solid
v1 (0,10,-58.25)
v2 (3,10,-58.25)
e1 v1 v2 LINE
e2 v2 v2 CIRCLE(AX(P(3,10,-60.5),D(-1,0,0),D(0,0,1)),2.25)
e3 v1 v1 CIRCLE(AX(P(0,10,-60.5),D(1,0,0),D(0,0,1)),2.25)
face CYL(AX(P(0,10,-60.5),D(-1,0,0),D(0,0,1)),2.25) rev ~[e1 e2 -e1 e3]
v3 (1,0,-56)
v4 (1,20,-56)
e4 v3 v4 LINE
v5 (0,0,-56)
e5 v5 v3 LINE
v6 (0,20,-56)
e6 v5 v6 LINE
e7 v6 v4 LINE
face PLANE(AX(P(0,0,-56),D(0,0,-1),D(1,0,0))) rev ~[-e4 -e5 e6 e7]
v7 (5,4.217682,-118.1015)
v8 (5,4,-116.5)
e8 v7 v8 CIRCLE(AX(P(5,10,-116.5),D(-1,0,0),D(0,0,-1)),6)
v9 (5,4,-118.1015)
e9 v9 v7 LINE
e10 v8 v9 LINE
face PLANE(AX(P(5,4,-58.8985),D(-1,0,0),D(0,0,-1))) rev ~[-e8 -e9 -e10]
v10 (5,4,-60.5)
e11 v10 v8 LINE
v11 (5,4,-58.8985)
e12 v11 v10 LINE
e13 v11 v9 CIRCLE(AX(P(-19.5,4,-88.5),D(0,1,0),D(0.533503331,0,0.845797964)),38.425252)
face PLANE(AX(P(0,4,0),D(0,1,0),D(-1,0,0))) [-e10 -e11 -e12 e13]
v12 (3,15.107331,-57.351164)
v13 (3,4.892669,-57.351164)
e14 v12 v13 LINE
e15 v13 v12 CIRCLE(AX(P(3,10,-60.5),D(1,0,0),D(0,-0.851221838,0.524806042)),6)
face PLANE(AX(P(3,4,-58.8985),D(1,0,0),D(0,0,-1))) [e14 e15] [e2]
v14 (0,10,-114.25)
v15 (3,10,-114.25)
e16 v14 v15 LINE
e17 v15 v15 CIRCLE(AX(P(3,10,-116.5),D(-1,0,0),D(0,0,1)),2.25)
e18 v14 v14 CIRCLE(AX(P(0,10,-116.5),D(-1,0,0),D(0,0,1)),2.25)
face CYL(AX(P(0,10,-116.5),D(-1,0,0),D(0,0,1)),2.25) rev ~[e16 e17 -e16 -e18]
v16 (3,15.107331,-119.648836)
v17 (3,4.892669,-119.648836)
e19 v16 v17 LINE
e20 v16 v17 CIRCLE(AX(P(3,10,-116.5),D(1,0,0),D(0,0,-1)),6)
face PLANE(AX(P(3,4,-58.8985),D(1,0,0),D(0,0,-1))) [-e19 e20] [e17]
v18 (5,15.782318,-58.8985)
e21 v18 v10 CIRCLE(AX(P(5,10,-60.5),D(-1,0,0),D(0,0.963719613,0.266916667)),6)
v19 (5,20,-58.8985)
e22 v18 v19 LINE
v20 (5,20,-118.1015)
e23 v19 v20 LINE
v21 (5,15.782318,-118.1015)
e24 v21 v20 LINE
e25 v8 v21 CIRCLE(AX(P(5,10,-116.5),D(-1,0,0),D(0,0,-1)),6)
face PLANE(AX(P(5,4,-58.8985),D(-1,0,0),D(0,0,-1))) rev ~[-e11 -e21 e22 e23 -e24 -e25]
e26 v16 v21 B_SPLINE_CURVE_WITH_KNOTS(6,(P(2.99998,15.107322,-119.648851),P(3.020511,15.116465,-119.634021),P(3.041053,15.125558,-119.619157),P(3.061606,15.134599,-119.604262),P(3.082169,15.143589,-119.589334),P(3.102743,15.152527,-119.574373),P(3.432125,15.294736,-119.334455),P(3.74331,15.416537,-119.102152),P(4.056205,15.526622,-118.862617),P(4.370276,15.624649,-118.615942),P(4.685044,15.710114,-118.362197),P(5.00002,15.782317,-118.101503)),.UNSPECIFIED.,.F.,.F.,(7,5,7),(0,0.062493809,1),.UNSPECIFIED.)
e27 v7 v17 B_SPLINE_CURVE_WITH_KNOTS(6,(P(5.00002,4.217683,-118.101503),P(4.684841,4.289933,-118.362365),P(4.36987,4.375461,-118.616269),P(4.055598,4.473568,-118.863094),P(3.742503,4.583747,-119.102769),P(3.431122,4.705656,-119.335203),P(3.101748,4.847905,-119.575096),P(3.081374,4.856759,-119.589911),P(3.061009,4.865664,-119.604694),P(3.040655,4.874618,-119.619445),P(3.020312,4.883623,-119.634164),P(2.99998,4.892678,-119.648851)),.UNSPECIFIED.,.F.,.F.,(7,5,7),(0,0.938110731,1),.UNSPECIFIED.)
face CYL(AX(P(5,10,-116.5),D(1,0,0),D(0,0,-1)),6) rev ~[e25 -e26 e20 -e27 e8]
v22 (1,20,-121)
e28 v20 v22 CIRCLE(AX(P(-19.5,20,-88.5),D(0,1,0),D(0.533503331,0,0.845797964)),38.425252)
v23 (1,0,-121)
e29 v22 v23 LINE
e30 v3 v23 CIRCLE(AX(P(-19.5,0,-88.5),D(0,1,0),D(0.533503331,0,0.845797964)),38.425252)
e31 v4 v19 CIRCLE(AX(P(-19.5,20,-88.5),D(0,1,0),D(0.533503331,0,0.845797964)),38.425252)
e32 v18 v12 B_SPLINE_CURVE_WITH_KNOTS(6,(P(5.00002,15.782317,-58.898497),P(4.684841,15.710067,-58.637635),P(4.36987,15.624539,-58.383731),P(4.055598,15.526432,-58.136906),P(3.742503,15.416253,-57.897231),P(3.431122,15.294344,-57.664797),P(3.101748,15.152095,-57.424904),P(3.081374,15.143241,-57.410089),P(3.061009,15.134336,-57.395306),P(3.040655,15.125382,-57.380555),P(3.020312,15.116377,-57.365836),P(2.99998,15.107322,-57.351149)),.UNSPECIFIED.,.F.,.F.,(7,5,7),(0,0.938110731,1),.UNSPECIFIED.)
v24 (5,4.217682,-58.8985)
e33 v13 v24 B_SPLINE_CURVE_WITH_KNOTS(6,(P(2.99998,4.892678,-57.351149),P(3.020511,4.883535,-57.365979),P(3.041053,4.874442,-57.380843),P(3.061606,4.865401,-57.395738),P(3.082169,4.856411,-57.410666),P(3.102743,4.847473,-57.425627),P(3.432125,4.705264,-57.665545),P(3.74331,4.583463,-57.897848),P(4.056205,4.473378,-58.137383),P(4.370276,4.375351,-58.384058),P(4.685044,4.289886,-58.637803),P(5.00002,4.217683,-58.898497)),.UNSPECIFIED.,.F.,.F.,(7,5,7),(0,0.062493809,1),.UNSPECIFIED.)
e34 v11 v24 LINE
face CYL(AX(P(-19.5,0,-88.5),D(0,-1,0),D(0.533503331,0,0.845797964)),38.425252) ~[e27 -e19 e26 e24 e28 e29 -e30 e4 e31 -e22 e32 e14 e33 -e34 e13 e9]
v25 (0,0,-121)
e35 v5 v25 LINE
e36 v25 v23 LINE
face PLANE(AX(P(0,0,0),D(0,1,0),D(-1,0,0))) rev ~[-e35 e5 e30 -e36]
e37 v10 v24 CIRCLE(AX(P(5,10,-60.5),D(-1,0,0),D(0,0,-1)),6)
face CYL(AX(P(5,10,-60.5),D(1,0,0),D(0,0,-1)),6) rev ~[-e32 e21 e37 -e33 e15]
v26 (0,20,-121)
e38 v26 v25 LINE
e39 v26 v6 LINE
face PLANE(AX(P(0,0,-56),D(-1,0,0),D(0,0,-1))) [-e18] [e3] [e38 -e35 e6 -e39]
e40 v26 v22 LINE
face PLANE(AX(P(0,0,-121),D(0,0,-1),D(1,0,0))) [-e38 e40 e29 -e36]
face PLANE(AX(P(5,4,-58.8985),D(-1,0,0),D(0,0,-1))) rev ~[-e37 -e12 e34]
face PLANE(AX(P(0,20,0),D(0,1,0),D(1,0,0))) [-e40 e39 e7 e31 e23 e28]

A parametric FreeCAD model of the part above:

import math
import FreeCAD as App
import Part
import Sketcher

V = App.Vector

doc = App.newDocument("Part")
body = doc.addObject("PartDesign::Body", "Body")

# Sketch on XZ plane
sketch1 = body.newObject("Sketcher::SketchObject", "Sketch")
sketch1.AttachmentSupport = (doc.getObject("XZ_Plane"), [""])
sketch1.MapMode = "FlatFace"
sketch1.addGeometry([
    Part.LineSegment(V(0, -121, 0), V(0, -56, 0)),
    Part.LineSegment(V(0, -56, 0), V(1, -56, 0)),
    Part.ArcOfCircle(Part.Circle(V(-19.5, -88.5, 0), V(0, 0, 1), 38.4), math.radians(-58), math.radians(58)),
    Part.LineSegment(V(1, -121, 0), V(0, -121, 0)),
], False)
sketch1.addConstraint([
    Sketcher.Constraint("Coincident", 0, 2, 1, 1),
    Sketcher.Constraint("Coincident", 1, 2, 2, 2),
    Sketcher.Constraint("Coincident", 2, 1, 3, 1),
    Sketcher.Constraint("Coincident", 3, 2, 0, 1),
    Sketcher.Constraint("Vertical", 0),
    Sketcher.Constraint("Horizontal", 1),
    Sketcher.Constraint("Horizontal", 3),
    Sketcher.Constraint("PointOnObject", 0, 2, -2),
    Sketcher.Constraint("Vertical", 1, 2, 2, 1),
    Sketcher.Constraint("DistanceX", 1, 1, 1, 2, 1.0),
    Sketcher.Constraint("DistanceY", 0, 1, 0, 2, 65.0),
    Sketcher.Constraint("DistanceY", 0, 2, -1, 1, 56.0),
    Sketcher.Constraint("DistanceX", 2, 3, -1, 1, 19.5),
])
pad1 = body.newObject("PartDesign::Pad", "Pad")
pad1.Profile = sketch1
pad1.Length = 4
pad1.Reversed = True

# Sketch on XZ plane
sketch2 = body.newObject("Sketcher::SketchObject", "Sketch001")
sketch2.AttachmentSupport = (doc.getObject("XZ_Plane"), [""])
sketch2.MapMode = "FlatFace"
sketch2.AttachmentOffset = App.Placement(V(0, 0, -4), App.Rotation())
sketch2.addGeometry([
    Part.LineSegment(V(1, -121, 0), V(0, -121, 0)),  # 0
    Part.LineSegment(V(0, -121, 0), V(0, -56, 0)),  # 1
    Part.LineSegment(V(0, -56, 0), V(1, -56, 0)),  # 2
    Part.ArcOfCircle(Part.Circle(V(-19.5, -88.5, 0), V(0, 0, 1), 38.4), math.radians(50.39), math.radians(57.76)),  # 3
    Part.LineSegment(V(5, -58.9, 0), V(5, -118.1, 0)),  # 4
    Part.ArcOfCircle(Part.Circle(V(-19.5, -88.5, 0), V(0, 0, 1), 38.4), math.radians(-57.76), math.radians(-50.39)),  # 5
], False)
sketch2.addConstraint([
    Sketcher.Constraint("Coincident", 0, 2, 1, 1),
    Sketcher.Constraint("Coincident", 1, 2, 2, 1),
    Sketcher.Constraint("Coincident", 2, 2, 3, 2),
    Sketcher.Constraint("Coincident", 3, 1, 4, 1),
    Sketcher.Constraint("Coincident", 4, 2, 5, 2),
    Sketcher.Constraint("Coincident", 5, 1, 0, 1),
    Sketcher.Constraint("Horizontal", 0),
    Sketcher.Constraint("Vertical", 1),
    Sketcher.Constraint("Horizontal", 2),
    Sketcher.Constraint("Vertical", 4),
    Sketcher.Constraint("Coincident", 5, 3, 3, 3),
    Sketcher.Constraint("Equal", 3, 5),
    Sketcher.Constraint("PointOnObject", 0, 2, -2),
    Sketcher.Constraint("Vertical", 2, 2, 5, 1),
    Sketcher.Constraint("DistanceX", 0, 2, 0, 1, 1.0),
    Sketcher.Constraint("DistanceY", 1, 1, 1, 2, 65.0),
    Sketcher.Constraint("DistanceY", 0, 2, -1, 1, 121.0),
    Sketcher.Constraint("DistanceX", -1, 1, 3, 1, 5.0),
    Sketcher.Constraint("DistanceX", 3, 3, -1, 1, 19.5),
])
pad2 = body.newObject("PartDesign::Pad", "Pad001")
pad2.Profile = sketch2
pad2.Length = 16
pad2.Reversed = True

# Sketch on YZ plane
sketch3 = body.newObject("Sketcher::SketchObject", "Sketch002")
sketch3.AttachmentSupport = (doc.getObject("YZ_Plane"), [""])
sketch3.MapMode = "FlatFace"
sketch3.addGeometry([
    Part.Circle(V(10, -60.5, 0), V(0, 0, 1), 2.2),
    Part.Circle(V(10, -116.5, 0), V(0, 0, 1), 2.2),
], False)
sketch3.addConstraint([
    Sketcher.Constraint("Equal", 0, 1),
    Sketcher.Constraint("Vertical", 0, 3, 1, 3),
    Sketcher.Constraint("Diameter", 0, 4.5),
    Sketcher.Constraint("DistanceX", -1, 1, 0, 3, 10.0),
    Sketcher.Constraint("DistanceY", 1, 3, 0, 3, 56.0),
    Sketcher.Constraint("DistanceY", 0, 3, -1, 1, 60.5),
])
pocket1 = body.newObject("PartDesign::Pocket", "Pocket")
pocket1.Profile = sketch3
pocket1.Length = 5
pocket1.Reversed = True

# Sketch on YZ plane
sketch4 = body.newObject("Sketcher::SketchObject", "Sketch003")
sketch4.AttachmentSupport = (doc.getObject("YZ_Plane"), [""])
sketch4.MapMode = "FlatFace"
sketch4.AttachmentOffset = App.Placement(V(0, 0, 5), App.Rotation())
sketch4.addGeometry([
    Part.Circle(V(10, -60, 0), V(0, 0, 1), 6),
    Part.Circle(V(10, -116, 0), V(0, 0, 1), 6),
], False)
sketch4.addConstraint([
    Sketcher.Constraint("Equal", 0, 1),
    Sketcher.Constraint("Vertical", 0, 3, 1, 3),
    Sketcher.Constraint("Diameter", 0, 12.0),
    Sketcher.Constraint("DistanceX", -1, 1, 0, 3, 10.0),
    Sketcher.Constraint("DistanceY", 1, 3, 0, 3, 56.0),
    Sketcher.Constraint("DistanceY", 0, 3, -1, 1, 60.5),
])
pocket2 = body.newObject("PartDesign::Pocket", "Pocket001")
pocket2.Profile = sketch4
pocket2.Length = 2

doc.recompute()
